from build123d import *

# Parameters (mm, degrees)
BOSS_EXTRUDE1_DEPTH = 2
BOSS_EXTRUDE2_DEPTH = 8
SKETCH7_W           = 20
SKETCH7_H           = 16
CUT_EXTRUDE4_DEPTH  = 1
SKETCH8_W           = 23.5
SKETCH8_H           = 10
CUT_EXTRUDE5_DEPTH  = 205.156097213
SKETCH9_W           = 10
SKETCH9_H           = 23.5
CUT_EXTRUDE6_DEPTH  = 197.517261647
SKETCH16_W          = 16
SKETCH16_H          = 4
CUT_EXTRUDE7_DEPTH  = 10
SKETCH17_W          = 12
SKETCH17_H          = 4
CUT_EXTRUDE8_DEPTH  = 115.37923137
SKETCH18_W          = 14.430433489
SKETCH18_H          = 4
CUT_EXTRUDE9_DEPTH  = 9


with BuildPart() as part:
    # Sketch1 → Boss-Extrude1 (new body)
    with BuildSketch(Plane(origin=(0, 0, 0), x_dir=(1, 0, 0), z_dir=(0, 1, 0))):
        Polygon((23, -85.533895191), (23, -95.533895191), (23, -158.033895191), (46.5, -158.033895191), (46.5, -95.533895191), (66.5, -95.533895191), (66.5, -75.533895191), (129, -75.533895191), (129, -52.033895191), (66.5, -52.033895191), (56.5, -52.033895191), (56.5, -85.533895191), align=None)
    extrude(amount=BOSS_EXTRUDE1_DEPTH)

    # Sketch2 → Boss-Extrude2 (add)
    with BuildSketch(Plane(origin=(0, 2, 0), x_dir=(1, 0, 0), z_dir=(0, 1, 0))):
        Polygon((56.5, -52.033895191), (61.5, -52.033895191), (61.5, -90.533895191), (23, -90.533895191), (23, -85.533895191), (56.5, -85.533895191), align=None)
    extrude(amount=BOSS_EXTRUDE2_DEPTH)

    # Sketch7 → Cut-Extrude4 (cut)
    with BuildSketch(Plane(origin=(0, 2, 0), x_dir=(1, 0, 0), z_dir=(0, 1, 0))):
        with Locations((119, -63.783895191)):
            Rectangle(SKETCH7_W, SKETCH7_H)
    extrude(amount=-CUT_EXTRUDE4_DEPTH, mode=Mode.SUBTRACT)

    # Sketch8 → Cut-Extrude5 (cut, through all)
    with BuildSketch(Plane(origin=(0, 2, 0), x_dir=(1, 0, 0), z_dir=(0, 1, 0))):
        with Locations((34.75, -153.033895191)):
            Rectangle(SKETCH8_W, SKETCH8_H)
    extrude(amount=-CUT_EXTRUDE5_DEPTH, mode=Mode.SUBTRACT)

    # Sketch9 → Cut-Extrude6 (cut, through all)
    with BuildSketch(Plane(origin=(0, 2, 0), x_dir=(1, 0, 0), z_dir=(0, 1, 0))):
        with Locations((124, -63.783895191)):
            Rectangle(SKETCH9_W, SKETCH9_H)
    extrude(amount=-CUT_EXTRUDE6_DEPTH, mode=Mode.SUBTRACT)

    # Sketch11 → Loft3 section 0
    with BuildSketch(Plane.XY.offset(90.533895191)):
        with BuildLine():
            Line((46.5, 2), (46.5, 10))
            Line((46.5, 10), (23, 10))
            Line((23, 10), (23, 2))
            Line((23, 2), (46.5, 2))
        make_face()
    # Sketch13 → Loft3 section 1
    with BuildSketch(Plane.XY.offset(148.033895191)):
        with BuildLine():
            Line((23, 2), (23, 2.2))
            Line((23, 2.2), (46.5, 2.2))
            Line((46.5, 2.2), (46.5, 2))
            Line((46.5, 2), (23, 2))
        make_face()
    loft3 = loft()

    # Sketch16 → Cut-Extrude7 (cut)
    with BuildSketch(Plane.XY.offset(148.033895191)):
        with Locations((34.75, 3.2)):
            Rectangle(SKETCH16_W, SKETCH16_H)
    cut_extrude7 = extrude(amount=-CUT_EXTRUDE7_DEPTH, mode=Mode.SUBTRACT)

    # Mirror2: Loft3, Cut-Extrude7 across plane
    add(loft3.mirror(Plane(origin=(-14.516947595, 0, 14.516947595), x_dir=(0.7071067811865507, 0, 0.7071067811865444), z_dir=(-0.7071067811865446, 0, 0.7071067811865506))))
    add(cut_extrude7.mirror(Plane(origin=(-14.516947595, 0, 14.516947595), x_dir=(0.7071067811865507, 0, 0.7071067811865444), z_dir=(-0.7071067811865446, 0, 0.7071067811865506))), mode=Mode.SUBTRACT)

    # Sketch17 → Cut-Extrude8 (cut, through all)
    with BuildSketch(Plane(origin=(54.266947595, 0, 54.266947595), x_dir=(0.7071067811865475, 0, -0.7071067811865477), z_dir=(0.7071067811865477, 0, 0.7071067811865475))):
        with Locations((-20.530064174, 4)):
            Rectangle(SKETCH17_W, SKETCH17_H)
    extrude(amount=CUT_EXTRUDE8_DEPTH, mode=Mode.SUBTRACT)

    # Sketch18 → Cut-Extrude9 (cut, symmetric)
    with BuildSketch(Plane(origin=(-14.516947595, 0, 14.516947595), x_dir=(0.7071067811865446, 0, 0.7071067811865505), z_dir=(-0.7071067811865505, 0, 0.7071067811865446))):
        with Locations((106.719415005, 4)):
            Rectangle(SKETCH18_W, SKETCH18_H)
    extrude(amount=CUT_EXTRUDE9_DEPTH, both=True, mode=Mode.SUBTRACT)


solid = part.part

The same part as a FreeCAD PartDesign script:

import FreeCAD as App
import Part
import Sketcher


def add_polygon(sketch, points):
    """Adds a closed chain of lines whose ends are joined by coincident constraints."""
    first, n = sketch.GeometryCount, len(points)
    for a, b in zip(points, points[1:] + points[:1]):
        sketch.addGeometry(Part.LineSegment(App.Vector(*a, 0), App.Vector(*b, 0)), False)
    for i in range(n):
        sketch.addConstraint(Sketcher.Constraint("Coincident", first + i, 2, first + (i + 1) % n, 1))

doc = App.newDocument("Part")
body = doc.addObject("PartDesign::Body", "Body")

sketch1 = doc.addObject("Sketcher::SketchObject", "Sketch")
body.addObject(sketch1)
sketch1.AttachmentSupport = (doc.XZ_Plane, [""])
sketch1.MapMode = "FlatFace"
add_polygon(sketch1, [(23, 86), (23, 158), (46, 158), (46, 96), (66, 96), (66, 76), (129, 76), (129, 52), (56, 52), (56, 86)])
sketch1.addConstraint(Sketcher.Constraint("Vertical", 0))
sketch1.addConstraint(Sketcher.Constraint("Horizontal", 1))
sketch1.addConstraint(Sketcher.Constraint("Vertical", 2))
sketch1.addConstraint(Sketcher.Constraint("Horizontal", 3))
sketch1.addConstraint(Sketcher.Constraint("Vertical", 4))
sketch1.addConstraint(Sketcher.Constraint("Horizontal", 5))
sketch1.addConstraint(Sketcher.Constraint("Vertical", 6))
sketch1.addConstraint(Sketcher.Constraint("Horizontal", 7))
sketch1.addConstraint(Sketcher.Constraint("Vertical", 8))
sketch1.addConstraint(Sketcher.Constraint("Horizontal", 9))
sketch1.addConstraint(Sketcher.Constraint("Equal", 7, 0))
sketch1.addConstraint(Sketcher.Constraint("Equal", 5, 2))
sketch1.addConstraint(Sketcher.Constraint("Equal", 3, 4))
sketch1.addConstraint(Sketcher.Constraint("Equal", 1, 6))
sketch1.addConstraint(Sketcher.Constraint("DistanceX", 3, 1, 3, 2, 20.0))
sketch1.addConstraint(Sketcher.Constraint("DistanceX", 1, 1, 1, 2, 23.5))
sketch1.addConstraint(Sketcher.Constraint("DistanceX", 5, 1, 5, 2, 62.5))
sketch1.addConstraint(Sketcher.Constraint("DistanceX", 7, 2, 7, 1, 72.5))
sketch1.addConstraint(Sketcher.Constraint("DistanceX", -1, 1, 0, 2, 23.0))
sketch1.addConstraint(Sketcher.Constraint("DistanceY", -1, 1, 0, 2, 158.033895))
pad1 = doc.addObject("PartDesign::Pad", "Pad")
body.addObject(pad1)
pad1.Profile = sketch1
pad1.Length = 2
pad1.Reversed = True

sketch2 = doc.addObject("Sketcher::SketchObject", "Sketch001")
body.addObject(sketch2)
sketch2.AttachmentSupport = (doc.XZ_Plane, [""])
sketch2.MapMode = "FlatFace"
sketch2.AttachmentOffset = App.Placement(App.Vector(0, 0, -2), App.Rotation())
add_polygon(sketch2, [(62, 52), (56, 52), (56, 86), (23, 86), (23, 91), (62, 91)])
sketch2.addConstraint(Sketcher.Constraint("Horizontal", 0))
sketch2.addConstraint(Sketcher.Constraint("Vertical", 1))
sketch2.addConstraint(Sketcher.Constraint("Horizontal", 2))
sketch2.addConstraint(Sketcher.Constraint("Vertical", 3))
sketch2.addConstraint(Sketcher.Constraint("Horizontal", 4))
sketch2.addConstraint(Sketcher.Constraint("Vertical", 5))
sketch2.addConstraint(Sketcher.Constraint("Equal", 2, 1))
sketch2.addConstraint(Sketcher.Constraint("Equal", 0, 3))
sketch2.addConstraint(Sketcher.Constraint("DistanceX", 0, 2, 0, 1, 5.0))
sketch2.addConstraint(Sketcher.Constraint("DistanceX", 2, 2, 2, 1, 33.5))
sketch2.addConstraint(Sketcher.Constraint("DistanceX", -1, 1, 2, 2, 23.0))
sketch2.addConstraint(Sketcher.Constraint("DistanceY", -1, 1, 0, 2, 52.033895))
pad2 = doc.addObject("PartDesign::Pad", "Pad001")
body.addObject(pad2)
pad2.Profile = sketch2
pad2.Length = 8
pad2.Reversed = True

sketch3 = doc.addObject("Sketcher::SketchObject", "Sketch002")
body.addObject(sketch3)
sketch3.AttachmentSupport = (doc.XZ_Plane, [""])
sketch3.MapMode = "FlatFace"
sketch3.AttachmentOffset = App.Placement(App.Vector(0, 0, -2), App.Rotation())
add_polygon(sketch3, [(109, 56), (109, 72), (129, 72), (129, 56)])
sketch3.addConstraint(Sketcher.Constraint("Vertical", 0))
sketch3.addConstraint(Sketcher.Constraint("Horizontal", 1))
sketch3.addConstraint(Sketcher.Constraint("Vertical", 2))
sketch3.addConstraint(Sketcher.Constraint("Horizontal", 3))
sketch3.addConstraint(Sketcher.Constraint("DistanceX", 1, 1, 1, 2, 20.0))
sketch3.addConstraint(Sketcher.Constraint("DistanceY", 0, 1, 0, 2, 16.0))
sketch3.addConstraint(Sketcher.Constraint("DistanceX", -1, 1, 0, 2, 109.0))
sketch3.addConstraint(Sketcher.Constraint("DistanceY", -1, 1, 0, 2, 71.783895))
pocket1 = doc.addObject("PartDesign::Pocket", "Pocket")
body.addObject(pocket1)
pocket1.Profile = sketch3
pocket1.Length = 1
pocket1.Reversed = True

sketch4 = doc.addObject("Sketcher::SketchObject", "Sketch003")
body.addObject(sketch4)
sketch4.AttachmentSupport = (doc.XZ_Plane, [""])
sketch4.MapMode = "FlatFace"
sketch4.AttachmentOffset = App.Placement(App.Vector(0, 0, -2), App.Rotation())
add_polygon(sketch4, [(23, 148), (23, 158), (46, 158), (46, 148)])
sketch4.addConstraint(Sketcher.Constraint("Vertical", 0))
sketch4.addConstraint(Sketcher.Constraint("Horizontal", 1))
sketch4.addConstraint(Sketcher.Constraint("Vertical", 2))
sketch4.addConstraint(Sketcher.Constraint("Horizontal", 3))
sketch4.addConstraint(Sketcher.Constraint("DistanceY", 0, 1, 0, 2, 10.0))
sketch4.addConstraint(Sketcher.Constraint("DistanceX", 1, 1, 1, 2, 23.5))
sketch4.addConstraint(Sketcher.Constraint("DistanceX", -1, 1, 0, 2, 23.0))
sketch4.addConstraint(Sketcher.Constraint("DistanceY", -1, 1, 0, 2, 158.033895))
pocket2 = doc.addObject("PartDesign::Pocket", "Pocket001")
body.addObject(pocket2)
pocket2.Profile = sketch4
pocket2.Type = "ThroughAll"
pocket2.Reversed = True

sketch5 = doc.addObject("Sketcher::SketchObject", "Sketch004")
body.addObject(sketch5)
sketch5.AttachmentSupport = (doc.XZ_Plane, [""])
sketch5.MapMode = "FlatFace"
sketch5.AttachmentOffset = App.Placement(App.Vector(0, 0, -2), App.Rotation())
add_polygon(sketch5, [(119, 52), (119, 76), (129, 76), (129, 52)])
sketch5.addConstraint(Sketcher.Constraint("Vertical", 0))
sketch5.addConstraint(Sketcher.Constraint("Horizontal", 1))
sketch5.addConstraint(Sketcher.Constraint("Vertical", 2))
sketch5.addConstraint(Sketcher.Constraint("Horizontal", 3))
sketch5.addConstraint(Sketcher.Constraint("DistanceX", 1, 1, 1, 2, 10.0))
sketch5.addConstraint(Sketcher.Constraint("DistanceY", 0, 1, 0, 2, 23.5))
sketch5.addConstraint(Sketcher.Constraint("DistanceX", -1, 1, 0, 2, 119.0))
sketch5.addConstraint(Sketcher.Constraint("DistanceY", -1, 1, 0, 2, 75.533895))
pocket3 = doc.addObject("PartDesign::Pocket", "Pocket002")
body.addObject(pocket3)
pocket3.Profile = sketch5
pocket3.Type = "ThroughAll"
pocket3.Reversed = True

sketch6 = doc.addObject("Sketcher::SketchObject", "Sketch005")
body.addObject(sketch6)
sketch6.AttachmentSupport = (doc.XY_Plane, [""])
sketch6.MapMode = "FlatFace"
sketch6.AttachmentOffset = App.Placement(App.Vector(0, 0, 90.533895), App.Rotation())
add_polygon(sketch6, [(46, 2), (46, 10), (23, 10), (23, 2)])
sketch6.addConstraint(Sketcher.Constraint("Vertical", 0))
sketch6.addConstraint(Sketcher.Constraint("Horizontal", 1))
sketch6.addConstraint(Sketcher.Constraint("Vertical", 2))
sketch6.addConstraint(Sketcher.Constraint("Horizontal", 3))
sketch6.addConstraint(Sketcher.Constraint("DistanceY", 0, 1, 0, 2, 8.0))
sketch6.addConstraint(Sketcher.Constraint("DistanceX", 1, 2, 1, 1, 23.5))
sketch6.addConstraint(Sketcher.Constraint("DistanceY", -1, 1, 0, 2, 10.0))
sketch6.addConstraint(Sketcher.Constraint("DistanceX", -1, 1, 1, 2, 23.0))

sketch7 = doc.addObject("Sketcher::SketchObject", "Sketch006")
body.addObject(sketch7)
sketch7.AttachmentSupport = (doc.XY_Plane, [""])
sketch7.MapMode = "FlatFace"
sketch7.AttachmentOffset = App.Placement(App.Vector(0, 0, 148.033895), App.Rotation())
add_polygon(sketch7, [(23, 2.2), (23, 2), (46.5, 2), (46.5, 2.2)])
sketch7.addConstraint(Sketcher.Constraint("Vertical", 0))
sketch7.addConstraint(Sketcher.Constraint("Horizontal", 1))
sketch7.addConstraint(Sketcher.Constraint("Vertical", 2))
sketch7.addConstraint(Sketcher.Constraint("Horizontal", 3))
sketch7.addConstraint(Sketcher.Constraint("DistanceX", 1, 1, 1, 2, 23.5))
sketch7.addConstraint(Sketcher.Constraint("DistanceY", 0, 2, 0, 1, 0.2))
sketch7.addConstraint(Sketcher.Constraint("DistanceX", -1, 1, 0, 2, 23.0))
sketch7.addConstraint(Sketcher.Constraint("DistanceY", -1, 1, 0, 2, 2.0))

additiveloft = doc.addObject("PartDesign::AdditiveLoft", "AdditiveLoft")
body.addObject(additiveloft)
additiveloft.Profile = sketch6
additiveloft.Sections = [sketch7]

sketch8 = doc.addObject("Sketcher::SketchObject", "Sketch007")
body.addObject(sketch8)
sketch8.AttachmentSupport = (doc.XY_Plane, [""])
sketch8.MapMode = "FlatFace"
sketch8.AttachmentOffset = App.Placement(App.Vector(0, 0, 148.033895), App.Rotation())
add_polygon(sketch8, [(26.8, 5.2), (26.8, 1.2), (42.8, 1.2), (42.8, 5.2)])
sketch8.addConstraint(Sketcher.Constraint("Vertical", 0))
sketch8.addConstraint(Sketcher.Constraint("Horizontal", 1))
sketch8.addConstraint(Sketcher.Constraint("Vertical", 2))
sketch8.addConstraint(Sketcher.Constraint("Horizontal", 3))
sketch8.addConstraint(Sketcher.Constraint("DistanceX", 1, 1, 1, 2, 16.0))
sketch8.addConstraint(Sketcher.Constraint("DistanceY", 0, 2, 0, 1, 4.0))
sketch8.addConstraint(Sketcher.Constraint("DistanceY", -1, 1, 0, 2, 1.2))
sketch8.addConstraint(Sketcher.Constraint("DistanceX", -1, 1, 0, 2, 26.75))
pocket4 = doc.addObject("PartDesign::Pocket", "Pocket003")
body.addObject(pocket4)
pocket4.Profile = sketch8
pocket4.Length = 10
doc.recompute()

datumplane = doc.addObject("PartDesign::Plane", "DatumPlane")
body.addObject(datumplane)
datumplane.Placement = App.Placement(App.Vector(-14.516948, 0, 14.516948), App.Rotation(App.Vector(-0.707106781, 0, -0.707106781), App.Vector(0, -1, 0), App.Vector(-0.707106781, 0, 0.707106781), "ZXY"))
mirrored = doc.addObject("PartDesign::Mirrored", "Mirrored")
body.addObject(mirrored)
mirrored.Originals = [additiveloft, pocket4]
mirrored.MirrorPlane = (datumplane, [""])
body.Tip = mirrored

sketch9 = doc.addObject("Sketcher::SketchObject", "Sketch008")
body.addObject(sketch9)
sketch9.Placement = App.Placement(App.Vector(54.266948, 0, 54.266948), App.Rotation(App.Vector(0.707106781, 0, -0.707106781), App.Vector(0, 0.999999999, 0), App.Vector(0.707106781, 0, 0.707106781), "ZXY"))
add_polygon(sketch9, [(-26.5, 6), (-26.5, 2), (-14.5, 2), (-14.5, 6)])
sketch9.addConstraint(Sketcher.Constraint("Vertical", 0))
sketch9.addConstraint(Sketcher.Constraint("Horizontal", 1))
sketch9.addConstraint(Sketcher.Constraint("Vertical", 2))
sketch9.addConstraint(Sketcher.Constraint("Horizontal", 3))
sketch9.addConstraint(Sketcher.Constraint("DistanceX", 1, 1, 1, 2, 12.0))
sketch9.addConstraint(Sketcher.Constraint("DistanceY", 0, 2, 0, 1, 4.0))
sketch9.addConstraint(Sketcher.Constraint("DistanceY", -1, 1, 0, 2, 2.0))
sketch9.addConstraint(Sketcher.Constraint("DistanceX", 0, 2, -1, 1, 26.530064))
pocket5 = doc.addObject("PartDesign::Pocket", "Pocket004")
body.addObject(pocket5)
pocket5.Profile = sketch9
pocket5.Type = "ThroughAll"
pocket5.Reversed = True

sketch10 = doc.addObject("Sketcher::SketchObject", "Sketch009")
body.addObject(sketch10)
sketch10.Placement = App.Placement(App.Vector(-14.516948, 0, 14.516948), App.Rotation(App.Vector(0.707106781, 0, 0.707106781), App.Vector(0, 0.999999999, 0), App.Vector(-0.707106781, 0, 0.707106781), "ZXY"))
add_polygon(sketch10, [(99.5, 6), (99.5, 2), (113.9, 2), (113.9, 6)])
sketch10.addConstraint(Sketcher.Constraint("Vertical", 0))
sketch10.addConstraint(Sketcher.Constraint("Horizontal", 1))
sketch10.addConstraint(Sketcher.Constraint("Vertical", 2))
sketch10.addConstraint(Sketcher.Constraint("Horizontal", 3))
sketch10.addConstraint(Sketcher.Constraint("DistanceY", 0, 2, 0, 1, 4.0))
sketch10.addConstraint(Sketcher.Constraint("DistanceY", -1, 1, 0, 2, 2.0))
sketch10.addConstraint(Sketcher.Constraint("DistanceX", -1, 1, 0, 2, 99.504198))
sketch10.addConstraint(Sketcher.Constraint("DistanceX", 1, 1, 1, 2, 14.430433))
pocket6 = doc.addObject("PartDesign::Pocket", "Pocket005")
body.addObject(pocket6)
pocket6.Profile = sketch10
pocket6.Length = 18
pocket6.Midplane = True

doc.recompute()
